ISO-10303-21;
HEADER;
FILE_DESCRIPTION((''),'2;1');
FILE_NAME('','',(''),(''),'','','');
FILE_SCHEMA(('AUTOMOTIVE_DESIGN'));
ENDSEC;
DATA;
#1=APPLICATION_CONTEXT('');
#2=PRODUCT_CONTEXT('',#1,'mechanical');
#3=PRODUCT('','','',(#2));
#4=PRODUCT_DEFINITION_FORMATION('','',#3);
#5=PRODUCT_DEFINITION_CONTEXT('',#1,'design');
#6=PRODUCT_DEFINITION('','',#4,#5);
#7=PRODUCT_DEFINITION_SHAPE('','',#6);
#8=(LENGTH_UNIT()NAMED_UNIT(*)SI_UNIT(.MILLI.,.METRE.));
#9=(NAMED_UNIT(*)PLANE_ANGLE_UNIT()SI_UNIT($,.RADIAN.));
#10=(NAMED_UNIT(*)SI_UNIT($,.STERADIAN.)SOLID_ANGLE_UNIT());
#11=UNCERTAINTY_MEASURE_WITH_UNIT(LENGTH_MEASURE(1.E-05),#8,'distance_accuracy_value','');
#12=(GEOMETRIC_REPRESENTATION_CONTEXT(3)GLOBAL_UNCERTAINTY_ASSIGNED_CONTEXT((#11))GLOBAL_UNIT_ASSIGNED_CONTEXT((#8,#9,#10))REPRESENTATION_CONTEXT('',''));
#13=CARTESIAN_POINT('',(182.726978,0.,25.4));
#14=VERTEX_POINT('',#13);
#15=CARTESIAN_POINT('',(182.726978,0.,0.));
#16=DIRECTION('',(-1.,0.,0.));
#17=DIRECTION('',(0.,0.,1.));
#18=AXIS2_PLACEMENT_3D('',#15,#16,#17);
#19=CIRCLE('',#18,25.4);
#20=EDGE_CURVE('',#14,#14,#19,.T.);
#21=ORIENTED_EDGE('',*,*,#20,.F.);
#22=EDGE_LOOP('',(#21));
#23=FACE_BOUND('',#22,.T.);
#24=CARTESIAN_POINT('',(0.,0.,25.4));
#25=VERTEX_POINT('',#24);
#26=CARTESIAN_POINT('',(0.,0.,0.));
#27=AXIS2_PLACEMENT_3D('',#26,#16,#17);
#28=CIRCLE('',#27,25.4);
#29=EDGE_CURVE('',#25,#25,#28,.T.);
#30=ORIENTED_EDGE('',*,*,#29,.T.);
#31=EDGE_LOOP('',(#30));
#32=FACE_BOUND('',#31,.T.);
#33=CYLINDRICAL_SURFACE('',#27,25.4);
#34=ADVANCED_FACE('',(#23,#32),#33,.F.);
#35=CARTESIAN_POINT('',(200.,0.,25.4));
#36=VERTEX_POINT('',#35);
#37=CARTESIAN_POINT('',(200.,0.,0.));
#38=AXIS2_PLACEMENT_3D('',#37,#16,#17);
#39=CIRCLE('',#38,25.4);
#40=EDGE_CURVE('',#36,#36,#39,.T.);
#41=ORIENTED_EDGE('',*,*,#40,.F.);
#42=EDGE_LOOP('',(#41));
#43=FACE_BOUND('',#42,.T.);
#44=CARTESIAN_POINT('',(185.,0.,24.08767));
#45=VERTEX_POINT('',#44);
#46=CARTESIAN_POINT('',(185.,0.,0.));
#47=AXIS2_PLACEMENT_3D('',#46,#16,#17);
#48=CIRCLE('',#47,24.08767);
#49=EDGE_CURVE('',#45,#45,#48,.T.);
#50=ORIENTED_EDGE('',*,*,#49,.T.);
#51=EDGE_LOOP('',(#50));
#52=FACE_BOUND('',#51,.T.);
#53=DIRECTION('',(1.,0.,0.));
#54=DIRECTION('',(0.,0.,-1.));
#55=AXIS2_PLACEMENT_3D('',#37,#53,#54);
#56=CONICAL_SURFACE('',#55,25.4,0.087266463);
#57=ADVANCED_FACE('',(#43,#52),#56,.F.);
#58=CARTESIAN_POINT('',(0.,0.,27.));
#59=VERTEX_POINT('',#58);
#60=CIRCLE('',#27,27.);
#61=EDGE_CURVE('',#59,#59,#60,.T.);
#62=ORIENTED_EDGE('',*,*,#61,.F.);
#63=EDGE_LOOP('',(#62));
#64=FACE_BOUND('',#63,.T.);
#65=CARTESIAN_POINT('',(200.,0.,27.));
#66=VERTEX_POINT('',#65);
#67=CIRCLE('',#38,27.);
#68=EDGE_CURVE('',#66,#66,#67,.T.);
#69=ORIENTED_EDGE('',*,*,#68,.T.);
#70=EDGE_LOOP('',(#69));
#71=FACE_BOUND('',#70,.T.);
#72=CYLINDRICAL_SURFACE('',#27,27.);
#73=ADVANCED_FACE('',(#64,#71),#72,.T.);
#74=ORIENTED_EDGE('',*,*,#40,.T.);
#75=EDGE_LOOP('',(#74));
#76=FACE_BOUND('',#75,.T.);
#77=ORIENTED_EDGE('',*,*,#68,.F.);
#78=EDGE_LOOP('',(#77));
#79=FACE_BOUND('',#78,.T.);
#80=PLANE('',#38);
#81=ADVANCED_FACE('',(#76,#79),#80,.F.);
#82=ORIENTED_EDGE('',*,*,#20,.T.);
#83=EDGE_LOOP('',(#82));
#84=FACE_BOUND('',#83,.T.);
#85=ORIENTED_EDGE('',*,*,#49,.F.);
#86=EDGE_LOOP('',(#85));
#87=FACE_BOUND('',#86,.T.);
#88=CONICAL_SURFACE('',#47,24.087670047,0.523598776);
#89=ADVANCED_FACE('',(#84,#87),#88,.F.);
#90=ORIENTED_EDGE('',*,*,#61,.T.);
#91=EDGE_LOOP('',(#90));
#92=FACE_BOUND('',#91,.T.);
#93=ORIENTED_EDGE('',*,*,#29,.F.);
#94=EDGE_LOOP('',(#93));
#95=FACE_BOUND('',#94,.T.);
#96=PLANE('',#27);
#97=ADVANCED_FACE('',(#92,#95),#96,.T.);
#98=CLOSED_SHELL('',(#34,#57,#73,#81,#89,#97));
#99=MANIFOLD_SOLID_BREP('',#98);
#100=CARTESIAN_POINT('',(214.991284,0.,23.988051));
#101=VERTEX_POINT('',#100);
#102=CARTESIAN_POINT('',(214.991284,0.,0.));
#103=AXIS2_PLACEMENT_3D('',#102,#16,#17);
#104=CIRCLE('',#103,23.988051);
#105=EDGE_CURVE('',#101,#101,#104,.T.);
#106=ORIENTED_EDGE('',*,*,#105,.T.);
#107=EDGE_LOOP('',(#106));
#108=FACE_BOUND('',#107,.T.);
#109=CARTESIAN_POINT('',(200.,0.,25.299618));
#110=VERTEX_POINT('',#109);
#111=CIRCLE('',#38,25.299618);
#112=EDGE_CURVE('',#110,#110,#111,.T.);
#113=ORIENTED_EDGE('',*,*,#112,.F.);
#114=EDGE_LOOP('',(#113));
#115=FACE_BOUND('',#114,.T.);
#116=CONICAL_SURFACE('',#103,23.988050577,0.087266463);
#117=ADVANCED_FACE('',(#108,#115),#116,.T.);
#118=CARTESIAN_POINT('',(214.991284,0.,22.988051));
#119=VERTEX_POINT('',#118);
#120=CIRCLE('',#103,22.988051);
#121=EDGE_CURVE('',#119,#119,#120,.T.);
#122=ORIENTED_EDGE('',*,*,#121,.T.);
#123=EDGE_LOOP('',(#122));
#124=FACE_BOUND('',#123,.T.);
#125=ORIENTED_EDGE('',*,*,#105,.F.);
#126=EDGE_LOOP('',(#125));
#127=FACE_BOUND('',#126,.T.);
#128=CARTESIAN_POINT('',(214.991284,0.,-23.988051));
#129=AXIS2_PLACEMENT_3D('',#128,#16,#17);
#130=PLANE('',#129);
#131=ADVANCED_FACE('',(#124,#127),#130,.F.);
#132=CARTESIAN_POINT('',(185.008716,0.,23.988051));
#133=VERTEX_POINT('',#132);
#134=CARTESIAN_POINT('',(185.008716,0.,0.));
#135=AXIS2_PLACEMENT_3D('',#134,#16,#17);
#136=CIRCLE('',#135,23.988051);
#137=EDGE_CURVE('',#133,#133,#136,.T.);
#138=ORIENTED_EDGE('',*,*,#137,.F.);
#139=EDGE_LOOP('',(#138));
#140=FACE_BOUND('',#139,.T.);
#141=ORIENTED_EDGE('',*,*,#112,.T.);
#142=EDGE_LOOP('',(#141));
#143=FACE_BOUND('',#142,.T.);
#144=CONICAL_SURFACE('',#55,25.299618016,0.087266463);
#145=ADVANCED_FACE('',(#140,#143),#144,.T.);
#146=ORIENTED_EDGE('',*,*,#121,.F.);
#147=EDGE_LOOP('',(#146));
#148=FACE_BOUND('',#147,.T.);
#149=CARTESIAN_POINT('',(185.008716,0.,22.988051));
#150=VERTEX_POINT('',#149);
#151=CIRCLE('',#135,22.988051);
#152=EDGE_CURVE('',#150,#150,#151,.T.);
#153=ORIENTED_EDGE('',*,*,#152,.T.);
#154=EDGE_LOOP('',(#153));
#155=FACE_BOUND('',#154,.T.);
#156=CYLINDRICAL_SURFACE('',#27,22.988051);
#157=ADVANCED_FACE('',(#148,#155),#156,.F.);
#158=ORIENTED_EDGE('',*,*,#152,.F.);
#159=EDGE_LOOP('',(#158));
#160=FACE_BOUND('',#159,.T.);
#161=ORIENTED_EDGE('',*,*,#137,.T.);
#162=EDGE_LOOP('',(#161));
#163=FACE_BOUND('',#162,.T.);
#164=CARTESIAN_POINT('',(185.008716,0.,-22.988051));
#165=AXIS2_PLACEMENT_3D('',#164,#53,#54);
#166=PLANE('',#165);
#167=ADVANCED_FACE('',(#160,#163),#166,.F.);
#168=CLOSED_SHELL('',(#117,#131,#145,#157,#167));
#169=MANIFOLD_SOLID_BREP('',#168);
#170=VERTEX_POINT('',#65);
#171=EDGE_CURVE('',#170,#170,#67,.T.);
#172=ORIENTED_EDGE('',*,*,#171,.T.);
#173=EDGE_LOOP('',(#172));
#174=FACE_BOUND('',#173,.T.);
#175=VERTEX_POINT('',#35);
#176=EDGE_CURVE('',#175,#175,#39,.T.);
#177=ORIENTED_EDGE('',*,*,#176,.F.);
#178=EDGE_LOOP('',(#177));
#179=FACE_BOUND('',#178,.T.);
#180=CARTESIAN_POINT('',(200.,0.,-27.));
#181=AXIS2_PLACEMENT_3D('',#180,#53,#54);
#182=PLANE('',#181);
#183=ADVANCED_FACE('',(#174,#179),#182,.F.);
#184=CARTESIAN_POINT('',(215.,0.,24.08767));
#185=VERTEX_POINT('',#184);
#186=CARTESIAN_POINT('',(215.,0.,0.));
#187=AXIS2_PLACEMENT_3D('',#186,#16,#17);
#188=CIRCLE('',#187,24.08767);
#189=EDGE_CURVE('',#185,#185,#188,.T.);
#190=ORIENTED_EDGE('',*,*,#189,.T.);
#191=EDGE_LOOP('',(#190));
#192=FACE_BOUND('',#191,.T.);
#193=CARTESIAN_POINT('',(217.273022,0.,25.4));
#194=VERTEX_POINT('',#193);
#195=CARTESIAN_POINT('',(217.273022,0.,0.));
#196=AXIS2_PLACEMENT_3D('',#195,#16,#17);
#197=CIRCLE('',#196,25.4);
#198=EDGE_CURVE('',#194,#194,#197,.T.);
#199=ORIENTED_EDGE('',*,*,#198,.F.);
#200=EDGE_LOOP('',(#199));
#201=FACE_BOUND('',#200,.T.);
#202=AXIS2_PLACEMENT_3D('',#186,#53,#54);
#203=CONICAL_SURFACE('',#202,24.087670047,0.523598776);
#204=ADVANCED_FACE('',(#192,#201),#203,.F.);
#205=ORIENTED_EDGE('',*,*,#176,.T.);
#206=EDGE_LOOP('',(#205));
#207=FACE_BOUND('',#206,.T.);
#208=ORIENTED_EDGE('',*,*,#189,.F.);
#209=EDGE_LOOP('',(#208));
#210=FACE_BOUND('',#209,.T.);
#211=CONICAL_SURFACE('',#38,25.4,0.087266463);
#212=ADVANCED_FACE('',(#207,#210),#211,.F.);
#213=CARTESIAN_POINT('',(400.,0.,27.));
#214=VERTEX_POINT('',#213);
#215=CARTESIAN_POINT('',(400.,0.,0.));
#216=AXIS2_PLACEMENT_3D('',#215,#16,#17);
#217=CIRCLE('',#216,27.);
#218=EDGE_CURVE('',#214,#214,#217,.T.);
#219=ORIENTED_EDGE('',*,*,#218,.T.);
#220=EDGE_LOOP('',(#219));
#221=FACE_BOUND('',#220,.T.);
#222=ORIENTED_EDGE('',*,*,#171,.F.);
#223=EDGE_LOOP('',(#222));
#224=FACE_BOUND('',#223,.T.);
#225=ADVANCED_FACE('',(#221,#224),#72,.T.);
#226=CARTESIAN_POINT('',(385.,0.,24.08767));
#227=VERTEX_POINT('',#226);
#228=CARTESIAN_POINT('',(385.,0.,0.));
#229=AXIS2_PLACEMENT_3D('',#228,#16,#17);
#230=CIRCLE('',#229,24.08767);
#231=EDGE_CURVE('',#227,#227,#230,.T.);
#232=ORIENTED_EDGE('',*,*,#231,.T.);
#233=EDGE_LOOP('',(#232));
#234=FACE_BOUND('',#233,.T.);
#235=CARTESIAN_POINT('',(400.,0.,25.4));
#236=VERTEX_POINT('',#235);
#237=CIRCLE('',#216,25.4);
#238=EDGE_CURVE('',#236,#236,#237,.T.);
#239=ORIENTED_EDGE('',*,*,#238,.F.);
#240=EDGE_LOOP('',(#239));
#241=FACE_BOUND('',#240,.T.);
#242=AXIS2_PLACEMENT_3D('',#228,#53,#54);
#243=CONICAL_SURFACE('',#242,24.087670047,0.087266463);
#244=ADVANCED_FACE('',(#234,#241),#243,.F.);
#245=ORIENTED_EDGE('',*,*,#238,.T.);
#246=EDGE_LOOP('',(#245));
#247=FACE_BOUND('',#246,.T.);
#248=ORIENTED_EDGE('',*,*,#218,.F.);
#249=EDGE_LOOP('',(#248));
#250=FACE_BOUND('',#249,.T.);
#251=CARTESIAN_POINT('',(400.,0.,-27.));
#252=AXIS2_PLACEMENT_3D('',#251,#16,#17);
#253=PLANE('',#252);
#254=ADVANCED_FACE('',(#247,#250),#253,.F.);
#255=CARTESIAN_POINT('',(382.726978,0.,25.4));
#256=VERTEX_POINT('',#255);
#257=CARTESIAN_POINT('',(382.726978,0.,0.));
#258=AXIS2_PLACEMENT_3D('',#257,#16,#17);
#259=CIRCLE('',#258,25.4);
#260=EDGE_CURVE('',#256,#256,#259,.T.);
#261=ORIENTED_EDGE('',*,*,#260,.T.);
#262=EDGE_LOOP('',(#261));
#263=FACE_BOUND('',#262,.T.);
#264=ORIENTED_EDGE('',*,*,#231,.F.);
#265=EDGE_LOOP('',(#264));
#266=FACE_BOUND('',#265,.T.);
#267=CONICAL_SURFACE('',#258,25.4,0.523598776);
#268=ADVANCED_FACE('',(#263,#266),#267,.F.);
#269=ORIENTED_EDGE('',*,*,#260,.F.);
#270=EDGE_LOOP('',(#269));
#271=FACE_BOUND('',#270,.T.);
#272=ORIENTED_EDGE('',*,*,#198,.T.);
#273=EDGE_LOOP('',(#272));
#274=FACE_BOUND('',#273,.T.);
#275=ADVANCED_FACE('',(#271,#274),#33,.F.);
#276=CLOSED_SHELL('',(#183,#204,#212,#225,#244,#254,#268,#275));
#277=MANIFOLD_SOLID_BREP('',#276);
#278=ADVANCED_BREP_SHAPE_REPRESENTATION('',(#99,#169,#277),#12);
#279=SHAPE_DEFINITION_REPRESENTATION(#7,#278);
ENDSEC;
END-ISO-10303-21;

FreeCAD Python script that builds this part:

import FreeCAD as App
import Part
import Sketcher
Q = App.Units.Quantity

doc = App.newDocument("Part")
body = doc.addObject("PartDesign::Body", "Body")

sketch1 = body.newObject("Sketcher::SketchObject", "Sketch")
sketch1.AttachmentSupport = (doc.getObject("XZ_Plane"), [""])
sketch1.MapMode = "FlatFace"
sketch1.addGeometry(Part.LineSegment(App.Vector(182.7, -25.4, 0), App.Vector(185, -24.1, 0)), False)
sketch1.addGeometry(Part.LineSegment(App.Vector(185, -24.1, 0), App.Vector(200, -25.4, 0)), False)
sketch1.addGeometry(Part.LineSegment(App.Vector(200, -25.4, 0), App.Vector(200, -27, 0)), False)
sketch1.addGeometry(Part.LineSegment(App.Vector(200, -27, 0), App.Vector(0, -27, 0)), False)
sketch1.addGeometry(Part.LineSegment(App.Vector(0, -27, 0), App.Vector(0, -25.4, 0)), False)
sketch1.addGeometry(Part.LineSegment(App.Vector(0, -25.4, 0), App.Vector(182.7, -25.4, 0)), False)
sketch1.addConstraint(Sketcher.Constraint("Coincident", 0, 2, 1, 1))
sketch1.addConstraint(Sketcher.Constraint("Coincident", 1, 2, 2, 1))
sketch1.addConstraint(Sketcher.Constraint("Coincident", 2, 2, 3, 1))
sketch1.addConstraint(Sketcher.Constraint("Coincident", 3, 2, 4, 1))
sketch1.addConstraint(Sketcher.Constraint("Coincident", 4, 2, 5, 1))
sketch1.addConstraint(Sketcher.Constraint("Coincident", 5, 2, 0, 1))
sketch1.addConstraint(Sketcher.Constraint("Vertical", 2))
sketch1.addConstraint(Sketcher.Constraint("Horizontal", 3))
sketch1.addConstraint(Sketcher.Constraint("Vertical", 4))
sketch1.addConstraint(Sketcher.Constraint("Horizontal", 5))
sketch1.addConstraint(Sketcher.Constraint("PointOnObject", 3, 2, -2))
sketch1.addConstraint(Sketcher.Constraint("Horizontal", 1, 2, 4, 2))
sketch1.addConstraint(Sketcher.Constraint("DistanceX", 3, 2, 3, 1, 200.0))
sketch1.addConstraint(Sketcher.Constraint("Angle", 0, Q("30 deg")))
sketch1.addConstraint(Sketcher.Constraint("Angle", 1, Q("-5 deg")))
sketch1.addConstraint(Sketcher.Constraint("DistanceY", 2, 2, 2, 1, 1.6))
sketch1.addConstraint(Sketcher.Constraint("DistanceX", -1, 1, 0, 2, 185.0))
sketch1.addConstraint(Sketcher.Constraint("DistanceY", 2, 2, -1, 1, 27.0))
revolution = body.newObject("PartDesign::Revolution", "Revolution")
revolution.Profile = sketch1
revolution.ReferenceAxis = (sketch1, ["H_Axis"])
revolution.Angle = 360
body2 = doc.addObject("PartDesign::Body", "Body001")

sketch2 = body2.newObject("Sketcher::SketchObject", "Sketch001")
sketch2.AttachmentSupport = (doc.getObject("XZ_Plane001"), [""])
sketch2.MapMode = "FlatFace"
sketch2.addGeometry(Part.LineSegment(App.Vector(217.3, -25.4, 0), App.Vector(382.7, -25.4, 0)), False)
sketch2.addGeometry(Part.LineSegment(App.Vector(382.7, -25.4, 0), App.Vector(385, -24.1, 0)), False)
sketch2.addGeometry(Part.LineSegment(App.Vector(385, -24.1, 0), App.Vector(400, -25.4, 0)), False)
sketch2.addGeometry(Part.LineSegment(App.Vector(400, -25.4, 0), App.Vector(400, -27, 0)), False)
sketch2.addGeometry(Part.LineSegment(App.Vector(400, -27, 0), App.Vector(200, -27, 0)), False)
sketch2.addGeometry(Part.LineSegment(App.Vector(200, -27, 0), App.Vector(200, -25.4, 0)), False)
sketch2.addGeometry(Part.LineSegment(App.Vector(200, -25.4, 0), App.Vector(215, -24.1, 0)), False)
sketch2.addGeometry(Part.LineSegment(App.Vector(215, -24.1, 0), App.Vector(217.3, -25.4, 0)), False)
sketch2.addConstraint(Sketcher.Constraint("Coincident", 0, 2, 1, 1))
sketch2.addConstraint(Sketcher.Constraint("Coincident", 1, 2, 2, 1))
sketch2.addConstraint(Sketcher.Constraint("Coincident", 2, 2, 3, 1))
sketch2.addConstraint(Sketcher.Constraint("Coincident", 3, 2, 4, 1))
sketch2.addConstraint(Sketcher.Constraint("Coincident", 4, 2, 5, 1))
sketch2.addConstraint(Sketcher.Constraint("Coincident", 5, 2, 6, 1))
sketch2.addConstraint(Sketcher.Constraint("Coincident", 6, 2, 7, 1))
sketch2.addConstraint(Sketcher.Constraint("Coincident", 7, 2, 0, 1))
sketch2.addConstraint(Sketcher.Constraint("Horizontal", 0))
sketch2.addConstraint(Sketcher.Constraint("Vertical", 3))
sketch2.addConstraint(Sketcher.Constraint("Horizontal", 4))
sketch2.addConstraint(Sketcher.Constraint("Vertical", 5))
sketch2.addConstraint(Sketcher.Constraint("Horizontal", 0, 2, 2, 2))
sketch2.addConstraint(Sketcher.Constraint("Horizontal", 2, 2, 5, 2))
sketch2.addConstraint(Sketcher.Constraint("Horizontal", 1, 2, 6, 2))
sketch2.addConstraint(Sketcher.Constraint("Equal", 2, 6))
sketch2.addConstraint(Sketcher.Constraint("Equal", 1, 7))
sketch2.addConstraint(Sketcher.Constraint("DistanceX", 4, 2, 4, 1, 200.0))
sketch2.addConstraint(Sketcher.Constraint("Angle", 1, Q("30 deg")))
sketch2.addConstraint(Sketcher.Constraint("Angle", 2, Q("-5 deg")))
sketch2.addConstraint(Sketcher.Constraint("DistanceY", 3, 2, 3, 1, 1.6))
sketch2.addConstraint(Sketcher.Constraint("DistanceX", -1, 1, 1, 2, 385.0))
sketch2.addConstraint(Sketcher.Constraint("DistanceX", -1, 1, 2, 2, 400.0))
sketch2.addConstraint(Sketcher.Constraint("DistanceY", 3, 2, -1, 1, 27.0))
revolution2 = body2.newObject("PartDesign::Revolution", "Revolution001")
revolution2.Profile = sketch2
revolution2.ReferenceAxis = (sketch2, ["H_Axis"])
revolution2.Angle = 360
body3 = doc.addObject("PartDesign::Body", "Body002")

sketch3 = body3.newObject("Sketcher::SketchObject", "Sketch002")
sketch3.AttachmentSupport = (doc.getObject("XZ_Plane002"), [""])
sketch3.MapMode = "FlatFace"
sketch3.addGeometry(Part.LineSegment(App.Vector(200, -25.3, 0), App.Vector(185, -24, 0)), False)
sketch3.addGeometry(Part.LineSegment(App.Vector(185, -24, 0), App.Vector(185, -23, 0)), False)
sketch3.addGeometry(Part.LineSegment(App.Vector(185, -23, 0), App.Vector(215, -23, 0)), False)
sketch3.addGeometry(Part.LineSegment(App.Vector(215, -23, 0), App.Vector(215, -24, 0)), False)
sketch3.addGeometry(Part.LineSegment(App.Vector(215, -24, 0), App.Vector(200, -25.3, 0)), False)
sketch3.addConstraint(Sketcher.Constraint("Coincident", 0, 2, 1, 1))
sketch3.addConstraint(Sketcher.Constraint("Coincident", 1, 2, 2, 1))
sketch3.addConstraint(Sketcher.Constraint("Coincident", 2, 2, 3, 1))
sketch3.addConstraint(Sketcher.Constraint("Coincident", 3, 2, 4, 1))
sketch3.addConstraint(Sketcher.Constraint("Coincident", 4, 2, 0, 1))
sketch3.addConstraint(Sketcher.Constraint("Vertical", 1))
sketch3.addConstraint(Sketcher.Constraint("Horizontal", 2))
sketch3.addConstraint(Sketcher.Constraint("Vertical", 3))
sketch3.addConstraint(Sketcher.Constraint("Horizontal", 0, 2, 3, 2))
sketch3.addConstraint(Sketcher.Constraint("Equal", 0, 4))
sketch3.addConstraint(Sketcher.Constraint("DistanceY", 1, 1, 1, 2, 1.0))
sketch3.addConstraint(Sketcher.Constraint("Angle", 0, Q("175 deg")))
sketch3.addConstraint(Sketcher.Constraint("DistanceX", -1, 1, 4, 2, 200.0))
sketch3.addConstraint(Sketcher.Constraint("DistanceX", 2, 1, 2, 2, 29.982569))
sketch3.addConstraint(Sketcher.Constraint("DistanceY", 0, 2, -1, 1, 23.988051))
revolution3 = body3.newObject("PartDesign::Revolution", "Revolution002")
revolution3.Profile = sketch3
revolution3.ReferenceAxis = (sketch3, ["H_Axis"])
revolution3.Angle = 360

doc.recompute()
